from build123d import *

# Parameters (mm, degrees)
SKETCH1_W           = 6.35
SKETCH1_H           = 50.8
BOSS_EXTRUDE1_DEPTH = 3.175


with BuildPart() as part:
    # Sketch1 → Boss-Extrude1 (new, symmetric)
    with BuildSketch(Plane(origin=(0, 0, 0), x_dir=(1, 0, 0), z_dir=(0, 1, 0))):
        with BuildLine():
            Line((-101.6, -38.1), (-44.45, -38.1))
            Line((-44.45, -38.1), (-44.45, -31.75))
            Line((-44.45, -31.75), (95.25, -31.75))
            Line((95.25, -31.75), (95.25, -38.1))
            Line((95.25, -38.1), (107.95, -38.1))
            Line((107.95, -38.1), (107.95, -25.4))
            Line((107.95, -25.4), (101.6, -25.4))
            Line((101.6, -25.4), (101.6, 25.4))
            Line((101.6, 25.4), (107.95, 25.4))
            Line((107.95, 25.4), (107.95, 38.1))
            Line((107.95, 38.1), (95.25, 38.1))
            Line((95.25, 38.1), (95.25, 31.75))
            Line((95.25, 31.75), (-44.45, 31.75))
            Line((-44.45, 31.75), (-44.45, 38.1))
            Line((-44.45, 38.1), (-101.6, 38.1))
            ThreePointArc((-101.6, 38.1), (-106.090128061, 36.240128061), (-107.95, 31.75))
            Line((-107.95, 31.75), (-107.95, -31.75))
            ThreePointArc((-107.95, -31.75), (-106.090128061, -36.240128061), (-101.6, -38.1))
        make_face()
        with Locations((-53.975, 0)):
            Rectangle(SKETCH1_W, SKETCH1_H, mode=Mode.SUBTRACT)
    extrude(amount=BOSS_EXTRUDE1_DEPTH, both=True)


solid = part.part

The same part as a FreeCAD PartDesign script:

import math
import FreeCAD as App
import Part
import Sketcher
Q = App.Units.Quantity

doc = App.newDocument("Part")
body = doc.addObject("PartDesign::Body", "Body")

sketch1 = body.newObject("Sketcher::SketchObject", "Sketch")
sketch1.AttachmentSupport = (doc.getObject("XZ_Plane"), [""])
sketch1.MapMode = "FlatFace"
sketch1.addGeometry([
    Part.LineSegment(App.Vector(-101.6, 38.1, 0), App.Vector(-44.45, 38.1, 0)),
    Part.LineSegment(App.Vector(-44.45, 38.1, 0), App.Vector(-44.45, 31.75, 0)),
    Part.LineSegment(App.Vector(-44.45, 31.75, 0), App.Vector(95.25, 31.75, 0)),
    Part.LineSegment(App.Vector(95.25, 31.75, 0), App.Vector(95.25, 38.1, 0)),
    Part.LineSegment(App.Vector(95.25, 38.1, 0), App.Vector(107.95, 38.1, 0)),
    Part.LineSegment(App.Vector(107.95, 38.1, 0), App.Vector(107.95, 25.4, 0)),
    Part.LineSegment(App.Vector(107.95, 25.4, 0), App.Vector(101.6, 25.4, 0)),
    Part.LineSegment(App.Vector(101.6, 25.4, 0), App.Vector(101.6, -25.4, 0)),
    Part.LineSegment(App.Vector(101.6, -25.4, 0), App.Vector(107.95, -25.4, 0)),
    Part.LineSegment(App.Vector(107.95, -25.4, 0), App.Vector(107.95, -38.1, 0)),
    Part.LineSegment(App.Vector(107.95, -38.1, 0), App.Vector(95.25, -38.1, 0)),
    Part.LineSegment(App.Vector(95.25, -38.1, 0), App.Vector(95.25, -31.75, 0)),
    Part.LineSegment(App.Vector(95.25, -31.75, 0), App.Vector(-44.45, -31.75, 0)),
    Part.LineSegment(App.Vector(-44.45, -31.75, 0), App.Vector(-44.45, -38.1, 0)),
    Part.LineSegment(App.Vector(-44.45, -38.1, 0), App.Vector(-101.6, -38.1, 0)),
    Part.ArcOfCircle(Part.Circle(App.Vector(-101.6, -31.75, 0), App.Vector(0, 0, 1), 6.35), math.radians(180), math.radians(270)),
    Part.LineSegment(App.Vector(-107.95, -31.75, 0), App.Vector(-107.95, 31.75, 0)),
    Part.ArcOfCircle(Part.Circle(App.Vector(-101.6, 31.75, 0), App.Vector(0, 0, 1), 6.35), math.radians(90), math.radians(180)),
    Part.LineSegment(App.Vector(-50.8, 25.4, 0), App.Vector(-57.15, 25.4, 0)),
    Part.LineSegment(App.Vector(-57.15, 25.4, 0), App.Vector(-57.15, -25.4, 0)),
    Part.LineSegment(App.Vector(-57.15, -25.4, 0), App.Vector(-50.8, -25.4, 0)),
    Part.LineSegment(App.Vector(-50.8, -25.4, 0), App.Vector(-50.8, 25.4, 0)),
], False)
sketch1.addConstraint([
    Sketcher.Constraint("Coincident", 0, 2, 1, 1),
    Sketcher.Constraint("Coincident", 1, 2, 2, 1),
    Sketcher.Constraint("Coincident", 2, 2, 3, 1),
    Sketcher.Constraint("Coincident", 3, 2, 4, 1),
    Sketcher.Constraint("Coincident", 4, 2, 5, 1),
    Sketcher.Constraint("Coincident", 5, 2, 6, 1),
    Sketcher.Constraint("Coincident", 6, 2, 7, 1),
    Sketcher.Constraint("Coincident", 7, 2, 8, 1),
    Sketcher.Constraint("Coincident", 8, 2, 9, 1),
    Sketcher.Constraint("Coincident", 9, 2, 10, 1),
    Sketcher.Constraint("Coincident", 10, 2, 11, 1),
    Sketcher.Constraint("Coincident", 11, 2, 12, 1),
    Sketcher.Constraint("Coincident", 12, 2, 13, 1),
    Sketcher.Constraint("Coincident", 13, 2, 14, 1),
    Sketcher.Constraint("Tangent", 14, 2, 15, 2),
    Sketcher.Constraint("Tangent", 15, 1, 16, 1),
    Sketcher.Constraint("Tangent", 16, 2, 17, 2),
    Sketcher.Constraint("Tangent", 17, 1, 0, 1),
    Sketcher.Constraint("Coincident", 18, 2, 19, 1),
    Sketcher.Constraint("Coincident", 19, 2, 20, 1),
    Sketcher.Constraint("Coincident", 20, 2, 21, 1),
    Sketcher.Constraint("Coincident", 21, 2, 18, 1),
    Sketcher.Constraint("Horizontal", 0),
    Sketcher.Constraint("Vertical", 1),
    Sketcher.Constraint("Horizontal", 2),
    Sketcher.Constraint("Vertical", 3),
    Sketcher.Constraint("Horizontal", 4),
    Sketcher.Constraint("Vertical", 5),
    Sketcher.Constraint("Horizontal", 6),
    Sketcher.Constraint("Vertical", 7),
    Sketcher.Constraint("Horizontal", 8),
    Sketcher.Constraint("Vertical", 9),
    Sketcher.Constraint("Horizontal", 10),
    Sketcher.Constraint("Vertical", 11),
    Sketcher.Constraint("Horizontal", 12),
    Sketcher.Constraint("Vertical", 13),
    Sketcher.Constraint("Horizontal", 14),
    Sketcher.Constraint("Vertical", 16),
    Sketcher.Constraint("Horizontal", 18),
    Sketcher.Constraint("Vertical", 19),
    Sketcher.Constraint("Horizontal", 20),
    Sketcher.Constraint("Vertical", 21),
    Sketcher.Constraint("Equal", 15, 17),
    Sketcher.Constraint("Symmetric", 5, 2, 8, 2, -1),
    Sketcher.Constraint("Symmetric", 3, 2, 10, 2, -1),
    Sketcher.Constraint("Symmetric", 1, 2, 12, 2, -1),
    Sketcher.Constraint("Horizontal", 17, 3, 1, 2),
    Sketcher.Constraint("Horizontal", 0, 2, 3, 2),
    Sketcher.Constraint("Horizontal", 15, 3, 11, 2),
    Sketcher.Constraint("Horizontal", 6, 2, 18, 2),
    Sketcher.Constraint("Horizontal", 8, 2, 19, 2),
    Sketcher.Constraint("Equal", 8, 18),
    Sketcher.Constraint("Equal", 20, 1),
    Sketcher.Constraint("Equal", 10, 5),
    Sketcher.Constraint("DistanceY", 7, 2, 7, 1, Q("2 in")),
    Sketcher.Constraint("Radius", 15, Q("0.25 in")),
    Sketcher.Constraint("DistanceX", 2, 1, 2, 2, Q("5.5 in")),
    Sketcher.Constraint("DistanceX", 4, 1, 4, 2, Q("0.5 in")),
    Sketcher.Constraint("DistanceX", 15, 3, -1, 1, Q("4 in")),
    Sketcher.Constraint("DistanceX", -1, 1, 6, 2, Q("4 in")),
    Sketcher.Constraint("DistanceX", 20, 2, -1, 1, Q("2 in")),
])
pad1 = body.newObject("PartDesign::Pad", "Pad")
pad1.Profile = sketch1
pad1.Length = Q("0.25 in")
pad1.Midplane = True

doc.recompute()
